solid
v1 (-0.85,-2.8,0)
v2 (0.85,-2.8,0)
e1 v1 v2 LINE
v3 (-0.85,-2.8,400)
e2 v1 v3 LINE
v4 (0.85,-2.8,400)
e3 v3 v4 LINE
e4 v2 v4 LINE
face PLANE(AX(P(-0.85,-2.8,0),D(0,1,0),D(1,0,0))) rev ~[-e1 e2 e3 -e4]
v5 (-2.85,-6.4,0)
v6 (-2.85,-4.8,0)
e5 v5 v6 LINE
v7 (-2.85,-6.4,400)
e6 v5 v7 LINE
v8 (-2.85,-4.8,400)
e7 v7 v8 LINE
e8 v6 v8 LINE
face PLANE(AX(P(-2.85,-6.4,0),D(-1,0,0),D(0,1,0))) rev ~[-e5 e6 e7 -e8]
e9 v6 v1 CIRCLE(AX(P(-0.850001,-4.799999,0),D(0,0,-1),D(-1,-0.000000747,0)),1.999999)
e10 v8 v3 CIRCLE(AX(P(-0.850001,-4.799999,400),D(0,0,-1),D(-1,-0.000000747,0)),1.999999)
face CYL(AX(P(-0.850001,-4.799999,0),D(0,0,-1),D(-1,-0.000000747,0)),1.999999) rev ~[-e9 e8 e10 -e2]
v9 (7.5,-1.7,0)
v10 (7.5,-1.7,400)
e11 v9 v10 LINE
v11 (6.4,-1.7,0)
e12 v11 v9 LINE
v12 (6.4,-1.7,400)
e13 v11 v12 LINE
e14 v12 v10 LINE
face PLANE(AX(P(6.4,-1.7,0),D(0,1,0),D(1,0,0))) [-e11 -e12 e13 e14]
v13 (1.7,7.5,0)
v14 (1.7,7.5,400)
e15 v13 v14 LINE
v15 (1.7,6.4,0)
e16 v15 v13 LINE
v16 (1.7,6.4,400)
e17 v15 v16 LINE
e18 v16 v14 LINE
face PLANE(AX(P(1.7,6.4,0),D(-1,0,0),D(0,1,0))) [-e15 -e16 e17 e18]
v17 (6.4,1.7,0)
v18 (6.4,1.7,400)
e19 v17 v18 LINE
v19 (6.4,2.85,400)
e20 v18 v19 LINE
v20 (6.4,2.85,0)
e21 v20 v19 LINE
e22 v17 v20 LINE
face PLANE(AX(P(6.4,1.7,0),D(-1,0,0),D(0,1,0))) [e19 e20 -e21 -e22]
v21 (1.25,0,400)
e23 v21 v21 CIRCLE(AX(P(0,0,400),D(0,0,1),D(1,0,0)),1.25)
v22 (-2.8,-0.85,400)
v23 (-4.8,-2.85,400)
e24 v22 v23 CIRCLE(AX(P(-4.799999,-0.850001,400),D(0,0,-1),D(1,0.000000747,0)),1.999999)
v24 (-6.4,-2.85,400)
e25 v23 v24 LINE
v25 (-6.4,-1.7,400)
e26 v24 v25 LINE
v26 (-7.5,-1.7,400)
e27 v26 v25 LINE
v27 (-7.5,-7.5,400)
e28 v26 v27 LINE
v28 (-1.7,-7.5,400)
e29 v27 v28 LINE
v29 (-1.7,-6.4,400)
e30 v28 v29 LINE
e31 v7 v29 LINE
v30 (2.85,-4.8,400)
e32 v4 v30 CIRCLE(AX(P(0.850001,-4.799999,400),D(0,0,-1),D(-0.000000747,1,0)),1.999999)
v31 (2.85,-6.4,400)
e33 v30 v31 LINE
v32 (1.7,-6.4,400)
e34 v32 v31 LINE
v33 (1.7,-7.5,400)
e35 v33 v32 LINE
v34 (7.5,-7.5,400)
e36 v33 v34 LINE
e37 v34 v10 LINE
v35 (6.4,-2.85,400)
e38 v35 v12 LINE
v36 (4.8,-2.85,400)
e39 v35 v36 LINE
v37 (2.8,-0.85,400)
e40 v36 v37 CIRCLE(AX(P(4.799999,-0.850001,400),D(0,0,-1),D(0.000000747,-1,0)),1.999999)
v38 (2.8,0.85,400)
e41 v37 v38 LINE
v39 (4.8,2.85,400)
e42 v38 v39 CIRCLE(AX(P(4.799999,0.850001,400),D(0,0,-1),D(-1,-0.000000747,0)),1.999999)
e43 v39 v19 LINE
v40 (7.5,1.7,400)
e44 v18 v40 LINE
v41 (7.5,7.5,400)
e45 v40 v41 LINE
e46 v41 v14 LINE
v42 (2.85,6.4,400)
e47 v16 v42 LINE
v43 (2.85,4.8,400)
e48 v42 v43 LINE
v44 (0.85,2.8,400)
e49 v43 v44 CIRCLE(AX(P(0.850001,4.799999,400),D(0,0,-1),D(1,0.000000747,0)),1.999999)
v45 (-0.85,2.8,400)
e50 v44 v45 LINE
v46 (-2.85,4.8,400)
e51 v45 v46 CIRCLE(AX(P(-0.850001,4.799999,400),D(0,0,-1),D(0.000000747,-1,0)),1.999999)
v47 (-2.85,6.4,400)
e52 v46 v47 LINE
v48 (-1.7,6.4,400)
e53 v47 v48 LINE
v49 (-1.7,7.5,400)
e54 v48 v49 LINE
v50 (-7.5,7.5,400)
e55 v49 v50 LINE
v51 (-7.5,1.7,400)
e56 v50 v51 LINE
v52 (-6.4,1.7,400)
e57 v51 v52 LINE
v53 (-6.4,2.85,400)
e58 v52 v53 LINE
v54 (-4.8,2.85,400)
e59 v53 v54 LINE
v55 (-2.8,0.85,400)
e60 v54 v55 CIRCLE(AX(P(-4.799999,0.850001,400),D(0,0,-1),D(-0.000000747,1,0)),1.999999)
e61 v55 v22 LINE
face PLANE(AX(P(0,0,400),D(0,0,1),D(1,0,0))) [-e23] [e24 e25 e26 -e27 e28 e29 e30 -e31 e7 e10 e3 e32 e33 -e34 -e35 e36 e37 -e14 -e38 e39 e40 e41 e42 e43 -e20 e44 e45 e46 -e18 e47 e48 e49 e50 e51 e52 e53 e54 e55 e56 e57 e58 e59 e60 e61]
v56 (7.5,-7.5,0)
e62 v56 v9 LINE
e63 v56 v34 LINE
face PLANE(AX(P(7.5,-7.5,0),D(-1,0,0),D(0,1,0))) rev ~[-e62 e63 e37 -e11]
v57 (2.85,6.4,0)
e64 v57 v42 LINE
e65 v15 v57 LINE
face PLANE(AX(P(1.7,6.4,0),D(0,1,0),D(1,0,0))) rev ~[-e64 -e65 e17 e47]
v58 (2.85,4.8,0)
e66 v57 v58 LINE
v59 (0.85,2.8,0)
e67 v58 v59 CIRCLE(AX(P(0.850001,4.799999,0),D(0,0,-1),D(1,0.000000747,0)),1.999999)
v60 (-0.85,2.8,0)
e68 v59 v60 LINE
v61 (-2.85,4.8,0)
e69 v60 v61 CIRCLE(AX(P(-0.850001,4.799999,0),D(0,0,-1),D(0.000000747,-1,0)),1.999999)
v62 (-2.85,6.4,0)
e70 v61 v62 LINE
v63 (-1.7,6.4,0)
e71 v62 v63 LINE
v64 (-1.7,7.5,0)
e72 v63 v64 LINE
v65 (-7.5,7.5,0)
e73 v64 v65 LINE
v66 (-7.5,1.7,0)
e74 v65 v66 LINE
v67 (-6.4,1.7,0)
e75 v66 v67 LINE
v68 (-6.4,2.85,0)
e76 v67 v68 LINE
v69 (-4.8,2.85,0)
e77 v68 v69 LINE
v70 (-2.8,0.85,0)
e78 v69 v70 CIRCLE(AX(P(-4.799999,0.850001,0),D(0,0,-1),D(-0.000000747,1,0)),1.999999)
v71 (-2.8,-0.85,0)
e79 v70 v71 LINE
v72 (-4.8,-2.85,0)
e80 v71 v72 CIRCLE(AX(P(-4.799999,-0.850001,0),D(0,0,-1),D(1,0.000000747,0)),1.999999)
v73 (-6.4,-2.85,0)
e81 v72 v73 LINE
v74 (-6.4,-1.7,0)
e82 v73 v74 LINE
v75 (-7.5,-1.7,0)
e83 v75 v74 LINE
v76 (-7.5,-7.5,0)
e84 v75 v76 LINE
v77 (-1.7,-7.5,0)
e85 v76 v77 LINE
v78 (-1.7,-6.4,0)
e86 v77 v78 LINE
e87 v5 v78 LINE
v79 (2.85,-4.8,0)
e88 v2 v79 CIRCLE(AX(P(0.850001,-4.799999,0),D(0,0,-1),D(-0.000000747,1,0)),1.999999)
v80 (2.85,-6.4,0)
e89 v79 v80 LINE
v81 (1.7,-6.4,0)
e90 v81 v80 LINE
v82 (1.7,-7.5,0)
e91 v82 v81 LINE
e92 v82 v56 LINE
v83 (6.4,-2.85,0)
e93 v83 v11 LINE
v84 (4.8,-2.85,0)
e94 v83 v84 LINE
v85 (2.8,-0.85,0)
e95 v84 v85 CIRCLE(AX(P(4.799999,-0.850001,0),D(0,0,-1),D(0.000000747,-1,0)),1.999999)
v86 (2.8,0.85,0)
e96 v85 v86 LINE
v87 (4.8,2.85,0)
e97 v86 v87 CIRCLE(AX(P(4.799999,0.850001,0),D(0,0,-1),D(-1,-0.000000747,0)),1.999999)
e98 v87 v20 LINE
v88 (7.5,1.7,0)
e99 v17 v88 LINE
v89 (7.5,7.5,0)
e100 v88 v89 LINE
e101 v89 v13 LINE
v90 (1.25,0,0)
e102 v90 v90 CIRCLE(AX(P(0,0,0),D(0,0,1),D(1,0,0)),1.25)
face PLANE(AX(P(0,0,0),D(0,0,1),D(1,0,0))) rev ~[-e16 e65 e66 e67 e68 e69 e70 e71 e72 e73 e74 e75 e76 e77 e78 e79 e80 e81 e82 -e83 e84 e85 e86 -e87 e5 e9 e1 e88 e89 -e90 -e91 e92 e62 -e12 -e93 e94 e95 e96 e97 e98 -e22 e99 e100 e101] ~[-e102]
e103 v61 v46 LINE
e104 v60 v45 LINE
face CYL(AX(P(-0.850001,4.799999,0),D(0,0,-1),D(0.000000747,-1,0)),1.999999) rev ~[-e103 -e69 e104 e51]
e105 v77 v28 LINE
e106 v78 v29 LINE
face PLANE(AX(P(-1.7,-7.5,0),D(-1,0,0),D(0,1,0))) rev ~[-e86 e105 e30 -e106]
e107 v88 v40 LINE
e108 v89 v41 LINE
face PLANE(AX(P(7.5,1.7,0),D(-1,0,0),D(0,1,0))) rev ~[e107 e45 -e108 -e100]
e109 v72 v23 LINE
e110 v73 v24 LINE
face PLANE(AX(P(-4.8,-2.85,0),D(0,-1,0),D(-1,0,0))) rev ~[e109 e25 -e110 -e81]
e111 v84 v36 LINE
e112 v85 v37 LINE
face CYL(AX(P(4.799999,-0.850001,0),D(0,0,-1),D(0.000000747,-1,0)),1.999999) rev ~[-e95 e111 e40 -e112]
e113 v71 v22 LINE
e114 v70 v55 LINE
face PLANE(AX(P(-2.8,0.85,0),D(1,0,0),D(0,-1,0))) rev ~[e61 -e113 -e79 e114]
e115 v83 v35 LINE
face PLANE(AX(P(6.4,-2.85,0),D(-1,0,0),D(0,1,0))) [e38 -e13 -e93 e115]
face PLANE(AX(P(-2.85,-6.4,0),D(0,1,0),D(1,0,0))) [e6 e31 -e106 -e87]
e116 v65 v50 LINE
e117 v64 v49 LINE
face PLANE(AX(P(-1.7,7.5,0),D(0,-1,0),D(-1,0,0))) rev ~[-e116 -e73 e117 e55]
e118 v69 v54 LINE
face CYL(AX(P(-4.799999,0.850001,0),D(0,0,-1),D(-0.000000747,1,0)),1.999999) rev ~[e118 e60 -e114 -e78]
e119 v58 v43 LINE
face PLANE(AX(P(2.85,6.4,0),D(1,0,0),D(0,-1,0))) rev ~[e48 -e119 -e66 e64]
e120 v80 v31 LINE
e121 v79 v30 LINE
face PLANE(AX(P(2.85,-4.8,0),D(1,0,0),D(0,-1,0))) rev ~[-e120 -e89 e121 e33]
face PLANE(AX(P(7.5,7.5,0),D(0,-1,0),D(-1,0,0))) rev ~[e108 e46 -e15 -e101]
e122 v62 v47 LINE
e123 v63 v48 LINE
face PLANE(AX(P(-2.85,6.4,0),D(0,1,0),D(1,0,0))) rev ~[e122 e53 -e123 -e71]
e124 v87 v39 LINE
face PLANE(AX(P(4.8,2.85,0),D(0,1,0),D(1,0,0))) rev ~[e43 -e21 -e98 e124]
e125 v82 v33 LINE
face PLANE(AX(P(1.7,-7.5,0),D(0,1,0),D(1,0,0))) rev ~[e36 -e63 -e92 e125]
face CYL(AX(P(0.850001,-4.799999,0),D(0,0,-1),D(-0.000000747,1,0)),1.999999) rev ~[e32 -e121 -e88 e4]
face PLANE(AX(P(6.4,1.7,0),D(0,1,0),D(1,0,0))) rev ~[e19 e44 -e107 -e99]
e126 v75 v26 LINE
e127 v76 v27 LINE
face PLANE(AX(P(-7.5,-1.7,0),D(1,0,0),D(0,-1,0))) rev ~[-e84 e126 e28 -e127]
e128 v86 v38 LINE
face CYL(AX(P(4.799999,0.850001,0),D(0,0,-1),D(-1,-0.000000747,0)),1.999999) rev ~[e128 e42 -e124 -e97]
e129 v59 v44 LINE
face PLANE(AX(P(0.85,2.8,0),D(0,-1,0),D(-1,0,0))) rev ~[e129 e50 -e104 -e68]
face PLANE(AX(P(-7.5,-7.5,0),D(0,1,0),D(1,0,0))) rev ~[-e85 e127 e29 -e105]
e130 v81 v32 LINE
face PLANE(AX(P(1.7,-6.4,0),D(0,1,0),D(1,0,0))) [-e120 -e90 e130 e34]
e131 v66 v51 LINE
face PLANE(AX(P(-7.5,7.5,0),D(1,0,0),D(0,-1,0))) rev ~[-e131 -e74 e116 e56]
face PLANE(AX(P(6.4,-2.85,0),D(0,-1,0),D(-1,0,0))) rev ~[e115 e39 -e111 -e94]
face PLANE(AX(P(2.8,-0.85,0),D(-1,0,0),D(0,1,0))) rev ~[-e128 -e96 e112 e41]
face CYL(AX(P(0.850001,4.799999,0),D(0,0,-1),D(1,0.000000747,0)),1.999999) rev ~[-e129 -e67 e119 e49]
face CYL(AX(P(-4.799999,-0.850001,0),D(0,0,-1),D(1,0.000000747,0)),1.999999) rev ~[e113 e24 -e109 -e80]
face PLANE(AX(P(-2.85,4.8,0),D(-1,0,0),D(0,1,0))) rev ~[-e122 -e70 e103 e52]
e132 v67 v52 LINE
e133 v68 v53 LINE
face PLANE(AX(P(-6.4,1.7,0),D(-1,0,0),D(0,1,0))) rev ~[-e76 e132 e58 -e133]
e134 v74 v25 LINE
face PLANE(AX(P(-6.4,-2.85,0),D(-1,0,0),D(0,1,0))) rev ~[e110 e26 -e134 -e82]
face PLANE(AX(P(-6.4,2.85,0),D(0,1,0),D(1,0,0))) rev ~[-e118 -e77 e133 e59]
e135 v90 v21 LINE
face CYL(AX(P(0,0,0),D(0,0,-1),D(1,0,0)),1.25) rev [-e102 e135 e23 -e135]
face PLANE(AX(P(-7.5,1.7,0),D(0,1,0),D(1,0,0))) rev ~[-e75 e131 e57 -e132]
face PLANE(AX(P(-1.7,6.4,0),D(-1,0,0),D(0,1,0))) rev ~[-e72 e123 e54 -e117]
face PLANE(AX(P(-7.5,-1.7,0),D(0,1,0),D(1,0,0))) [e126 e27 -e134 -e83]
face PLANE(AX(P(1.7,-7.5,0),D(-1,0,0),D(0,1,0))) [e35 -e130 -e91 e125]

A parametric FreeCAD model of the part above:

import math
import FreeCAD as App
import Part
import Sketcher

V = App.Vector

doc = App.newDocument("Part")
body = doc.addObject("PartDesign::Body", "Body")

# Sketch on XY plane
sketch1 = doc.addObject("Sketcher::SketchObject", "Sketch")
body.addObject(sketch1)
sketch1.AttachmentSupport = (doc.XY_Plane, [""])
sketch1.MapMode = "FlatFace"
sketch1.addGeometry(Part.LineSegment(V(-7.5, 7.5, 0), V(-7.5, 1.7, 0)), False)
sketch1.addGeometry(Part.LineSegment(V(-7.5, 1.7, 0), V(-6.4, 1.7, 0)), False)
sketch1.addGeometry(Part.LineSegment(V(-6.4, 1.7, 0), V(-6.4, 2.9, 0)), False)
sketch1.addGeometry(Part.LineSegment(V(-6.4, 2.9, 0), V(-4.8, 2.9, 0)), False)
sketch1.addGeometry(Part.ArcOfCircle(Part.Circle(V(-4.8, 0.9, 0), V(0, 0, 1), 2), math.radians(0), math.radians(90)), False)
sketch1.addGeometry(Part.LineSegment(V(-2.8, 0.8, 0), V(-2.8, -0.8, 0)), False)
sketch1.addGeometry(Part.ArcOfCircle(Part.Circle(V(-4.8, -0.9, 0), V(0, 0, 1), 2), math.radians(-90), math.radians(0)), False)
sketch1.addGeometry(Part.LineSegment(V(-4.8, -2.9, 0), V(-6.4, -2.9, 0)), False)
sketch1.addGeometry(Part.LineSegment(V(-6.4, -2.9, 0), V(-6.4, -1.7, 0)), False)
sketch1.addGeometry(Part.LineSegment(V(-6.4, -1.7, 0), V(-7.5, -1.7, 0)), False)
sketch1.addGeometry(Part.LineSegment(V(-7.5, -1.7, 0), V(-7.5, -7.5, 0)), False)
sketch1.addGeometry(Part.LineSegment(V(-7.5, -7.5, 0), V(-1.7, -7.5, 0)), False)
sketch1.addGeometry(Part.LineSegment(V(-1.7, -7.5, 0), V(-1.7, -6.4, 0)), False)
sketch1.addGeometry(Part.LineSegment(V(-1.7, -6.4, 0), V(-2.9, -6.4, 0)), False)
sketch1.addGeometry(Part.LineSegment(V(-2.9, -6.4, 0), V(-2.9, -4.8, 0)), False)
sketch1.addGeometry(Part.ArcOfCircle(Part.Circle(V(-0.9, -4.8, 0), V(0, 0, 1), 2), math.radians(90), math.radians(180)), False)
sketch1.addGeometry(Part.LineSegment(V(-0.8, -2.8, 0), V(0.8, -2.8, 0)), False)
sketch1.addGeometry(Part.ArcOfCircle(Part.Circle(V(0.9, -4.8, 0), V(0, 0, 1), 2), math.radians(0), math.radians(90)), False)
sketch1.addGeometry(Part.LineSegment(V(2.9, -4.8, 0), V(2.9, -6.4, 0)), False)
sketch1.addGeometry(Part.LineSegment(V(2.9, -6.4, 0), V(1.7, -6.4, 0)), False)
sketch1.addGeometry(Part.LineSegment(V(1.7, -6.4, 0), V(1.7, -7.5, 0)), False)
sketch1.addGeometry(Part.LineSegment(V(1.7, -7.5, 0), V(7.5, -7.5, 0)), False)
sketch1.addGeometry(Part.LineSegment(V(7.5, -7.5, 0), V(7.5, -1.7, 0)), False)
sketch1.addGeometry(Part.LineSegment(V(7.5, -1.7, 0), V(6.4, -1.7, 0)), False)
sketch1.addGeometry(Part.LineSegment(V(6.4, -1.7, 0), V(6.4, -2.9, 0)), False)
sketch1.addGeometry(Part.LineSegment(V(6.4, -2.9, 0), V(4.8, -2.9, 0)), False)
sketch1.addGeometry(Part.ArcOfCircle(Part.Circle(V(4.8, -0.9, 0), V(0, 0, 1), 2), math.radians(180), math.radians(270)), False)
sketch1.addGeometry(Part.LineSegment(V(2.8, -0.8, 0), V(2.8, 0.8, 0)), False)
sketch1.addGeometry(Part.ArcOfCircle(Part.Circle(V(4.8, 0.9, 0), V(0, 0, 1), 2), math.radians(90), math.radians(180)), False)
sketch1.addGeometry(Part.LineSegment(V(4.8, 2.9, 0), V(6.4, 2.9, 0)), False)
sketch1.addGeometry(Part.LineSegment(V(6.4, 2.9, 0), V(6.4, 1.7, 0)), False)
sketch1.addGeometry(Part.LineSegment(V(6.4, 1.7, 0), V(7.5, 1.7, 0)), False)
sketch1.addGeometry(Part.LineSegment(V(7.5, 1.7, 0), V(7.5, 7.5, 0)), False)
sketch1.addGeometry(Part.LineSegment(V(7.5, 7.5, 0), V(1.7, 7.5, 0)), False)
sketch1.addGeometry(Part.LineSegment(V(1.7, 7.5, 0), V(1.7, 6.4, 0)), False)
sketch1.addGeometry(Part.LineSegment(V(1.7, 6.4, 0), V(2.9, 6.4, 0)), False)
sketch1.addGeometry(Part.LineSegment(V(2.9, 6.4, 0), V(2.9, 4.8, 0)), False)
sketch1.addGeometry(Part.ArcOfCircle(Part.Circle(V(0.9, 4.8, 0), V(0, 0, 1), 2), math.radians(-90), math.radians(0)), False)
sketch1.addGeometry(Part.LineSegment(V(0.8, 2.8, 0), V(-0.8, 2.8, 0)), False)
sketch1.addGeometry(Part.ArcOfCircle(Part.Circle(V(-0.9, 4.8, 0), V(0, 0, 1), 2), math.radians(180), math.radians(270)), False)
sketch1.addGeometry(Part.LineSegment(V(-2.9, 4.8, 0), V(-2.9, 6.4, 0)), False)
sketch1.addGeometry(Part.LineSegment(V(-2.9, 6.4, 0), V(-1.7, 6.4, 0)), False)
sketch1.addGeometry(Part.LineSegment(V(-1.7, 6.4, 0), V(-1.7, 7.5, 0)), False)
sketch1.addGeometry(Part.LineSegment(V(-1.7, 7.5, 0), V(-7.5, 7.5, 0)), False)
sketch1.addGeometry(Part.Circle(V(0, 0, 0), V(0, 0, 1), 1.2), False)
sketch1.addConstraint(Sketcher.Constraint("Coincident", 0, 2, 1, 1))
sketch1.addConstraint(Sketcher.Constraint("Coincident", 1, 2, 2, 1))
sketch1.addConstraint(Sketcher.Constraint("Coincident", 2, 2, 3, 1))
sketch1.addConstraint(Sketcher.Constraint("Tangent", 3, 2, 4, 2))
sketch1.addConstraint(Sketcher.Constraint("Tangent", 4, 1, 5, 1))
sketch1.addConstraint(Sketcher.Constraint("Tangent", 5, 2, 6, 2))
sketch1.addConstraint(Sketcher.Constraint("Tangent", 6, 1, 7, 1))
sketch1.addConstraint(Sketcher.Constraint("Coincident", 7, 2, 8, 1))
sketch1.addConstraint(Sketcher.Constraint("Coincident", 8, 2, 9, 1))
sketch1.addConstraint(Sketcher.Constraint("Coincident", 9, 2, 10, 1))
sketch1.addConstraint(Sketcher.Constraint("Coincident", 10, 2, 11, 1))
sketch1.addConstraint(Sketcher.Constraint("Coincident", 11, 2, 12, 1))
sketch1.addConstraint(Sketcher.Constraint("Coincident", 12, 2, 13, 1))
sketch1.addConstraint(Sketcher.Constraint("Coincident", 13, 2, 14, 1))
sketch1.addConstraint(Sketcher.Constraint("Tangent", 14, 2, 15, 2))
sketch1.addConstraint(Sketcher.Constraint("Tangent", 15, 1, 16, 1))
sketch1.addConstraint(Sketcher.Constraint("Tangent", 16, 2, 17, 2))
sketch1.addConstraint(Sketcher.Constraint("Tangent", 17, 1, 18, 1))
sketch1.addConstraint(Sketcher.Constraint("Coincident", 18, 2, 19, 1))
sketch1.addConstraint(Sketcher.Constraint("Coincident", 19, 2, 20, 1))
sketch1.addConstraint(Sketcher.Constraint("Coincident", 20, 2, 21, 1))
sketch1.addConstraint(Sketcher.Constraint("Coincident", 21, 2, 22, 1))
sketch1.addConstraint(Sketcher.Constraint("Coincident", 22, 2, 23, 1))
sketch1.addConstraint(Sketcher.Constraint("Coincident", 23, 2, 24, 1))
sketch1.addConstraint(Sketcher.Constraint("Coincident", 24, 2, 25, 1))
sketch1.addConstraint(Sketcher.Constraint("Tangent", 25, 2, 26, 2))
sketch1.addConstraint(Sketcher.Constraint("Tangent", 26, 1, 27, 1))
sketch1.addConstraint(Sketcher.Constraint("Tangent", 27, 2, 28, 2))
sketch1.addConstraint(Sketcher.Constraint("Tangent", 28, 1, 29, 1))
sketch1.addConstraint(Sketcher.Constraint("Coincident", 29, 2, 30, 1))
sketch1.addConstraint(Sketcher.Constraint("Coincident", 30, 2, 31, 1))
sketch1.addConstraint(Sketcher.Constraint("Coincident", 31, 2, 32, 1))
sketch1.addConstraint(Sketcher.Constraint("Coincident", 32, 2, 33, 1))
sketch1.addConstraint(Sketcher.Constraint("Coincident", 33, 2, 34, 1))
sketch1.addConstraint(Sketcher.Constraint("Coincident", 34, 2, 35, 1))
sketch1.addConstraint(Sketcher.Constraint("Coincident", 35, 2, 36, 1))
sketch1.addConstraint(Sketcher.Constraint("Tangent", 36, 2, 37, 2))
sketch1.addConstraint(Sketcher.Constraint("Tangent", 37, 1, 38, 1))
sketch1.addConstraint(Sketcher.Constraint("Tangent", 38, 2, 39, 2))
sketch1.addConstraint(Sketcher.Constraint("Tangent", 39, 1, 40, 1))
sketch1.addConstraint(Sketcher.Constraint("Coincident", 40, 2, 41, 1))
sketch1.addConstraint(Sketcher.Constraint("Coincident", 41, 2, 42, 1))
sketch1.addConstraint(Sketcher.Constraint("Coincident", 42, 2, 43, 1))
sketch1.addConstraint(Sketcher.Constraint("Coincident", 43, 2, 0, 1))
sketch1.addConstraint(Sketcher.Constraint("Vertical", 0))
sketch1.addConstraint(Sketcher.Constraint("Horizontal", 1))
sketch1.addConstraint(Sketcher.Constraint("Vertical", 2))
sketch1.addConstraint(Sketcher.Constraint("Horizontal", 3))
sketch1.addConstraint(Sketcher.Constraint("Vertical", 5))
sketch1.addConstraint(Sketcher.Constraint("Horizontal", 7))
sketch1.addConstraint(Sketcher.Constraint("Vertical", 8))
sketch1.addConstraint(Sketcher.Constraint("Horizontal", 9))
sketch1.addConstraint(Sketcher.Constraint("Vertical", 10))
sketch1.addConstraint(Sketcher.Constraint("Horizontal", 11))
sketch1.addConstraint(Sketcher.Constraint("Vertical", 12))
sketch1.addConstraint(Sketcher.Constraint("Horizontal", 13))
sketch1.addConstraint(Sketcher.Constraint("Vertical", 14))
sketch1.addConstraint(Sketcher.Constraint("Horizontal", 16))
sketch1.addConstraint(Sketcher.Constraint("Vertical", 18))
sketch1.addConstraint(Sketcher.Constraint("Horizontal", 19))
sketch1.addConstraint(Sketcher.Constraint("Vertical", 20))
sketch1.addConstraint(Sketcher.Constraint("Horizontal", 21))
sketch1.addConstraint(Sketcher.Constraint("Vertical", 22))
sketch1.addConstraint(Sketcher.Constraint("Horizontal", 23))
sketch1.addConstraint(Sketcher.Constraint("Vertical", 24))
sketch1.addConstraint(Sketcher.Constraint("Horizontal", 25))
sketch1.addConstraint(Sketcher.Constraint("Vertical", 27))
sketch1.addConstraint(Sketcher.Constraint("Horizontal", 29))
sketch1.addConstraint(Sketcher.Constraint("Vertical", 30))
sketch1.addConstraint(Sketcher.Constraint("Horizontal", 31))
sketch1.addConstraint(Sketcher.Constraint("Vertical", 32))
sketch1.addConstraint(Sketcher.Constraint("Horizontal", 33))
sketch1.addConstraint(Sketcher.Constraint("Vertical", 34))
sketch1.addConstraint(Sketcher.Constraint("Horizontal", 35))
sketch1.addConstraint(Sketcher.Constraint("Vertical", 36))
sketch1.addConstraint(Sketcher.Constraint("Horizontal", 38))
sketch1.addConstraint(Sketcher.Constraint("Vertical", 40))
sketch1.addConstraint(Sketcher.Constraint("Horizontal", 41))
sketch1.addConstraint(Sketcher.Constraint("Vertical", 42))
sketch1.addConstraint(Sketcher.Constraint("Horizontal", 43))
sketch1.addConstraint(Sketcher.Constraint("Coincident", 44, 3, -1, 1))
sketch1.addConstraint(Sketcher.Constraint("Equal", 4, 6))
sketch1.addConstraint(Sketcher.Constraint("Equal", 6, 15))
sketch1.addConstraint(Sketcher.Constraint("Equal", 15, 17))
sketch1.addConstraint(Sketcher.Constraint("Equal", 17, 26))
sketch1.addConstraint(Sketcher.Constraint("Equal", 26, 28))
sketch1.addConstraint(Sketcher.Constraint("Equal", 28, 37))
sketch1.addConstraint(Sketcher.Constraint("Equal", 37, 39))
sketch1.addConstraint(Sketcher.Constraint("Symmetric", 4, 3, 26, 3, -1, 1))
sketch1.addConstraint(Sketcher.Constraint("Symmetric", 15, 3, 37, 3, -1, 1))
sketch1.addConstraint(Sketcher.Constraint("Symmetric", 0, 2, 22, 2, -1, 1))
sketch1.addConstraint(Sketcher.Constraint("Symmetric", 7, 2, 29, 2, -1, 1))
sketch1.addConstraint(Sketcher.Constraint("Symmetric", 9, 2, 31, 2, -1, 1))
sketch1.addConstraint(Sketcher.Constraint("Symmetric", 11, 2, 33, 2, -1, 1))
sketch1.addConstraint(Sketcher.Constraint("Symmetric", 18, 2, 40, 2, -1, 1))
sketch1.addConstraint(Sketcher.Constraint("Symmetric", 20, 2, 42, 2, -1, 1))
sketch1.addConstraint(Sketcher.Constraint("Symmetric", 13, 2, 18, 2, -2))
sketch1.addConstraint(Sketcher.Constraint("Symmetric", 11, 2, 20, 2, -2))
sketch1.addConstraint(Sketcher.Constraint("Symmetric", 9, 2, 22, 2, -2))
sketch1.addConstraint(Sketcher.Constraint("Symmetric", 7, 2, 24, 2, -2))
sketch1.addConstraint(Sketcher.Constraint("Horizontal", 35, 2, 40, 2))
sketch1.addConstraint(Sketcher.Constraint("Vertical", 2, 2, 7, 2))
sketch1.addConstraint(Sketcher.Constraint("Equal", 43, 0))
sketch1.addConstraint(Sketcher.Constraint("Equal", 41, 2))
sketch1.addConstraint(Sketcher.Constraint("Equal", 38, 5))
sketch1.addConstraint(Sketcher.Constraint("Equal", 31, 12))
sketch1.addConstraint(Sketcher.Constraint("Equal", 29, 14))
sketch1.addConstraint(Sketcher.Constraint("Radius", 4, 1.999999))
sketch1.addConstraint(Sketcher.Constraint("Diameter", 44, 2.5))
sketch1.addConstraint(Sketcher.Constraint("DistanceX", 1, 1, 1, 2, 1.1))
sketch1.addConstraint(Sketcher.Constraint("DistanceX", 3, 1, 3, 2, 1.6))
sketch1.addConstraint(Sketcher.Constraint("DistanceX", 11, 1, 11, 2, 5.8))
sketch1.addConstraint(Sketcher.Constraint("DistanceX", 16, 1, 16, 2, 1.7))
sketch1.addConstraint(Sketcher.Constraint("DistanceX", 13, 2, 13, 1, 1.15))
pad1 = doc.addObject("PartDesign::Pad", "Pad")
body.addObject(pad1)
pad1.Profile = sketch1
pad1.Length = 400

doc.recompute()
